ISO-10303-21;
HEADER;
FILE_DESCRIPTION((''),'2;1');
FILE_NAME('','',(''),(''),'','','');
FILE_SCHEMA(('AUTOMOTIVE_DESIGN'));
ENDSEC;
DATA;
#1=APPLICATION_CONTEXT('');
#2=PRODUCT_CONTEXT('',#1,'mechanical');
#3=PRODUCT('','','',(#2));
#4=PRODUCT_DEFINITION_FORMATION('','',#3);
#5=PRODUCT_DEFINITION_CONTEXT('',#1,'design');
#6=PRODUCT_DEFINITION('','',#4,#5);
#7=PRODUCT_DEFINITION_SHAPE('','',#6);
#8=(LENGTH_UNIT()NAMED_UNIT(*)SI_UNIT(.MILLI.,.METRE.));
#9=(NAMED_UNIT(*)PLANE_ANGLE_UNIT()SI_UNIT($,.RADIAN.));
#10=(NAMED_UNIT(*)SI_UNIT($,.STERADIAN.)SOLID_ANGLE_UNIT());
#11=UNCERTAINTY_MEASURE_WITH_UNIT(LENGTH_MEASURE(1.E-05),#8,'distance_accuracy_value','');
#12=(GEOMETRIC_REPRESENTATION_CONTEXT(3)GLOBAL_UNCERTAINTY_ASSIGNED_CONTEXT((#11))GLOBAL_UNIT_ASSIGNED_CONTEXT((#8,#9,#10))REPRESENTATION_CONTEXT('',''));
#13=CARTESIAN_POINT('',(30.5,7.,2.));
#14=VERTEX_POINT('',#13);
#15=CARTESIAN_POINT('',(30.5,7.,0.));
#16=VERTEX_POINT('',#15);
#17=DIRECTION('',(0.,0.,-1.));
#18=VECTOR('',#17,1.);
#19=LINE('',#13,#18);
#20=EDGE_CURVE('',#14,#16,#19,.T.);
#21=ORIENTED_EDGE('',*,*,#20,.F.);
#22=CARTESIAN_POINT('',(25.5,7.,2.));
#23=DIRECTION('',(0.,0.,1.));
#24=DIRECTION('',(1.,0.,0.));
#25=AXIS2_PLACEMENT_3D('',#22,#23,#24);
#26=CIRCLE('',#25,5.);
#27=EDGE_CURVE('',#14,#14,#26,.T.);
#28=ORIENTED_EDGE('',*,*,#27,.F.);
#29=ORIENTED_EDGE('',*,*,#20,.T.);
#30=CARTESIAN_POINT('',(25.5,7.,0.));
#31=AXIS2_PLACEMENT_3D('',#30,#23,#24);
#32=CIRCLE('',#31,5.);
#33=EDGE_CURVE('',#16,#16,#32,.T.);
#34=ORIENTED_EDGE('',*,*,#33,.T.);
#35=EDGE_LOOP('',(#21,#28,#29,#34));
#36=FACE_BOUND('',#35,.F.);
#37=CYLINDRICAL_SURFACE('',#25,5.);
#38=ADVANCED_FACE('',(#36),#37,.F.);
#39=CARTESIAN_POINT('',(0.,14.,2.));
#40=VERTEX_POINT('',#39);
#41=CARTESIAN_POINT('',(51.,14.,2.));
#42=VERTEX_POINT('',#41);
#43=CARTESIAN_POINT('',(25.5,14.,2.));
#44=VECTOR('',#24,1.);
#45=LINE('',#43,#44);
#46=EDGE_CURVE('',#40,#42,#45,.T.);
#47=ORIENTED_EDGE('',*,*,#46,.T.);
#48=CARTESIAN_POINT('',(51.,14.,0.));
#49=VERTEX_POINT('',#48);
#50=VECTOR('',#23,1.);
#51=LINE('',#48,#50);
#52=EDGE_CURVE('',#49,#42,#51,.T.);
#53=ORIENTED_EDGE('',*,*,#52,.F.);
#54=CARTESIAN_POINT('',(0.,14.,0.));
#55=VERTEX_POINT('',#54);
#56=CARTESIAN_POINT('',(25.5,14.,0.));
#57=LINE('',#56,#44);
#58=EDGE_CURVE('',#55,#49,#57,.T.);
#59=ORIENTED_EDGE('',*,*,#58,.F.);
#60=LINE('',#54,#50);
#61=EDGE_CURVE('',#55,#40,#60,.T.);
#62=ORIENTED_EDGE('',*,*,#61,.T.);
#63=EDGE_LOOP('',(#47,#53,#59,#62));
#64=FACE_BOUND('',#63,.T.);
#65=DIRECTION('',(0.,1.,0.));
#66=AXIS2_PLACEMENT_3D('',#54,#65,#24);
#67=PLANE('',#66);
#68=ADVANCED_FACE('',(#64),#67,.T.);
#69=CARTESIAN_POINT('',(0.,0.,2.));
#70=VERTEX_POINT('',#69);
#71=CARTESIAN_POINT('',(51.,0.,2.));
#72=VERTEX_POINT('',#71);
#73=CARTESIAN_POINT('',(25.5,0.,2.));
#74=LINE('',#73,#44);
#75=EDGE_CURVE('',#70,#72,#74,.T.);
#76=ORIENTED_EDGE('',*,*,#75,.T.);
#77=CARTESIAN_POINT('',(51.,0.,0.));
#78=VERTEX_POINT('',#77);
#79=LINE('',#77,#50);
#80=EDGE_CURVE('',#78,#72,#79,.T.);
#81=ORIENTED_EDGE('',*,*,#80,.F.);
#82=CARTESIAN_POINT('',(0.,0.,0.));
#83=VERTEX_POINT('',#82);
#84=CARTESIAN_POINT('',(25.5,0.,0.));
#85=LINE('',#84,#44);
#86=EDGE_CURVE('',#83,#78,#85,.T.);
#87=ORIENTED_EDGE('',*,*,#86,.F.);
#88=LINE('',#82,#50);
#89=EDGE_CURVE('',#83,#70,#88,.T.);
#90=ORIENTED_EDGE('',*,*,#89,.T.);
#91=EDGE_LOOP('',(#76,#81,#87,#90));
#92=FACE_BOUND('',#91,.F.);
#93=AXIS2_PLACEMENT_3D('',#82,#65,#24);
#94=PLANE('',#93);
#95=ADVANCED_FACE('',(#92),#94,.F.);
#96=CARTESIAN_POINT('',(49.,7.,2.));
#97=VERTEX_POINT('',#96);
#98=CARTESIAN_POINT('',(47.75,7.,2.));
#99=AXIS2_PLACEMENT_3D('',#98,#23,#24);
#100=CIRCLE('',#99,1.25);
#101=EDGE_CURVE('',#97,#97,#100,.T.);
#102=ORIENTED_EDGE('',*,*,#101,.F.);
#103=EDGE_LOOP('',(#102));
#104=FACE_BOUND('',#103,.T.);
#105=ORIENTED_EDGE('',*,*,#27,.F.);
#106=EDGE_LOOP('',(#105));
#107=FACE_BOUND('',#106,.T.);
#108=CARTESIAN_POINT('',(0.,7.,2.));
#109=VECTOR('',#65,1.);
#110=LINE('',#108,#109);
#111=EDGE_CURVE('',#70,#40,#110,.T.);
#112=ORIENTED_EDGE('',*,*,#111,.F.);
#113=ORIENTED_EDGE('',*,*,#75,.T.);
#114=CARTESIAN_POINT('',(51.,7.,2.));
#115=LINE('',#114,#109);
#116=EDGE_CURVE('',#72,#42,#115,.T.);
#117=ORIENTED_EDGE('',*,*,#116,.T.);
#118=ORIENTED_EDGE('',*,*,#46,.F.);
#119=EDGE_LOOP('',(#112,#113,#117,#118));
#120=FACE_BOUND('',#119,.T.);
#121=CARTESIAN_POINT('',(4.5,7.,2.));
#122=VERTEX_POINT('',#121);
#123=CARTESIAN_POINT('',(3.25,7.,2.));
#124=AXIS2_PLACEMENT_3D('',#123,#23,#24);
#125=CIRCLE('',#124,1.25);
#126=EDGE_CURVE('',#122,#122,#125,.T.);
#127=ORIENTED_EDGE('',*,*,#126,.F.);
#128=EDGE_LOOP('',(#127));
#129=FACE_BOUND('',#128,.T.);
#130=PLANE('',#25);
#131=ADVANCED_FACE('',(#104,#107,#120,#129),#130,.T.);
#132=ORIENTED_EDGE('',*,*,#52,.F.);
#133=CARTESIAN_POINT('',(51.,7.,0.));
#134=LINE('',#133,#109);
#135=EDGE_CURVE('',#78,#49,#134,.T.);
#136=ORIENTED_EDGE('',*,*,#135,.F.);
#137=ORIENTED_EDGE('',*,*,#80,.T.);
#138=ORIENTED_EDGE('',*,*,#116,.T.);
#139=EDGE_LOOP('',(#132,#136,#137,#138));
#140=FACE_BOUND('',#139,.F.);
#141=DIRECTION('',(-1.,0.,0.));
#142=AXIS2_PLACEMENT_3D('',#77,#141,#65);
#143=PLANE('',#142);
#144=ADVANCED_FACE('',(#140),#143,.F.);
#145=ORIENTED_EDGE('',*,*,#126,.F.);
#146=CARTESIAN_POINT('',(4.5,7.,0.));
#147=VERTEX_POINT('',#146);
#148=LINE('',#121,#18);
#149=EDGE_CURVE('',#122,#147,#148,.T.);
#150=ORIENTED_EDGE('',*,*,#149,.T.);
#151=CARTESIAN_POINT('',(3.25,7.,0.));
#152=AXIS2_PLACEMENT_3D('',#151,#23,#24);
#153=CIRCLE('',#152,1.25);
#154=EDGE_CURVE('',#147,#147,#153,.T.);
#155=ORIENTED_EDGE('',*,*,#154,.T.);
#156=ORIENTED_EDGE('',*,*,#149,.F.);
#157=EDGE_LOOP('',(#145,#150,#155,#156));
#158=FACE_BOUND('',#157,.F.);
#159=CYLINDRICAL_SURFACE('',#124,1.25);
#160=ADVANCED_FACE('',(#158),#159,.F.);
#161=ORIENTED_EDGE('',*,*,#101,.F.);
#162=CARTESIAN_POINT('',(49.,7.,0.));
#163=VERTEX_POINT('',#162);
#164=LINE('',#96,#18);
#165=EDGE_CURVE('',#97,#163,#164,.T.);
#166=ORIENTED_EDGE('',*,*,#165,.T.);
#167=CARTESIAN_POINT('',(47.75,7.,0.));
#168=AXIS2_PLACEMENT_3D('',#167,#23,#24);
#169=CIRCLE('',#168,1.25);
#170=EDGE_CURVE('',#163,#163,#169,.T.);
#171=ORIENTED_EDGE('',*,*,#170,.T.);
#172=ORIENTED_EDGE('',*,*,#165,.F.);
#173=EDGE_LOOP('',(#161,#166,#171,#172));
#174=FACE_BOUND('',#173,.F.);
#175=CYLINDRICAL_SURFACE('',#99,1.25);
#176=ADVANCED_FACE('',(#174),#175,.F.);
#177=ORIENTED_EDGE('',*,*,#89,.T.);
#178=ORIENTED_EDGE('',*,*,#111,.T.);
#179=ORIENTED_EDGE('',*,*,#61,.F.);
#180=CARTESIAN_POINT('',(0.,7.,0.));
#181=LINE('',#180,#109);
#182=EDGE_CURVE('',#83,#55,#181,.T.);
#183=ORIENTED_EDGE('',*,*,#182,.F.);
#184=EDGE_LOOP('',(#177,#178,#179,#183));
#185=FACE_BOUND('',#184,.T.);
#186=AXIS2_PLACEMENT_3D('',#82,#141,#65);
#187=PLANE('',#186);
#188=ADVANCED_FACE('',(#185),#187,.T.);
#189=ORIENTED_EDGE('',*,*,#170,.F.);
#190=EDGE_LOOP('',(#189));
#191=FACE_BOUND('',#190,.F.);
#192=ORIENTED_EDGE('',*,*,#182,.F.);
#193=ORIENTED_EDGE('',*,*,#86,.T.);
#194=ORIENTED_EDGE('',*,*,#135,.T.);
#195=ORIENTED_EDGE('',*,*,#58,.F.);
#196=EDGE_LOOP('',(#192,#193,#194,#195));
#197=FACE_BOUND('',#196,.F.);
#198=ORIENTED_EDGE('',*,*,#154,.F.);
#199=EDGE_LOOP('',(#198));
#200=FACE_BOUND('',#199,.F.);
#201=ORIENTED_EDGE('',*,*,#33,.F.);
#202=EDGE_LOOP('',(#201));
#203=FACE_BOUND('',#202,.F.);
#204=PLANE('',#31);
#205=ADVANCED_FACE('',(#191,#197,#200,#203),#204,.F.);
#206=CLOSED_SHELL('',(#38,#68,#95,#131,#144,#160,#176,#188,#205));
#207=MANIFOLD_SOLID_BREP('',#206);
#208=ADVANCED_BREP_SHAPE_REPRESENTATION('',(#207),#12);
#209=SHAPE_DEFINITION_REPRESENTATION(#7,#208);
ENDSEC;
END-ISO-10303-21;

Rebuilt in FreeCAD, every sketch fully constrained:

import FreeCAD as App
import Part
import Sketcher

V = App.Vector


def add_polygon(sketch, points):
    """Adds a closed chain of lines whose ends are joined by coincident constraints."""
    first, n = sketch.GeometryCount, len(points)
    for a, b in zip(points, points[1:] + points[:1]):
        sketch.addGeometry(Part.LineSegment(App.Vector(*a, 0), App.Vector(*b, 0)), False)
    for i in range(n):
        sketch.addConstraint(Sketcher.Constraint("Coincident", first + i, 2, first + (i + 1) % n, 1))

doc = App.newDocument("Part")
body = doc.addObject("PartDesign::Body", "Body")

sketch1 = doc.addObject("Sketcher::SketchObject", "Sketch")
body.addObject(sketch1)
sketch1.AttachmentSupport = (doc.XY_Plane, [""])
sketch1.MapMode = "FlatFace"
add_polygon(sketch1, [(0, 14), (0, 0), (51, 0), (51, 14)])
sketch1.addConstraint([
    Sketcher.Constraint("Vertical", 0),
    Sketcher.Constraint("Horizontal", 1),
    Sketcher.Constraint("Vertical", 2),
    Sketcher.Constraint("Horizontal", 3),
    Sketcher.Constraint("Coincident", 0, 2, -1, 1),
    Sketcher.Constraint("DistanceX", 1, 1, 1, 2, 51.0),
    Sketcher.Constraint("DistanceY", 0, 2, 0, 1, 14.0),
])
pad1 = doc.addObject("PartDesign::Pad", "Pad")
body.addObject(pad1)
pad1.Profile = sketch1
pad1.Length = 2

sketch2 = doc.addObject("Sketcher::SketchObject", "Sketch001")
body.addObject(sketch2)
sketch2.AttachmentSupport = (doc.XY_Plane, [""])
sketch2.MapMode = "FlatFace"
sketch2.AttachmentOffset = App.Placement(V(0, 0, 2), App.Rotation())
sketch2.addGeometry([
    Part.Circle(V(3.25, 7, 0), V(0, 0, 1), 1.25),
    Part.Circle(V(25.5, 7, 0), V(0, 0, 1), 5),
    Part.Circle(V(47.75, 7, 0), V(0, 0, 1), 1.25),
], False)
sketch2.addConstraint([
    Sketcher.Constraint("Equal", 0, 2),
    Sketcher.Constraint("Horizontal", 0, 3, 1, 3),
    Sketcher.Constraint("Horizontal", 1, 3, 2, 3),
    Sketcher.Constraint("Diameter", 1, 10.0),
    Sketcher.Constraint("Diameter", 0, 2.5),
    Sketcher.Constraint("DistanceY", -1, 1, 0, 3, 7.0),
    Sketcher.Constraint("DistanceX", -1, 1, 1, 3, 25.5),
    Sketcher.Constraint("DistanceX", 0, 3, 2, 3, 44.5),
    Sketcher.Constraint("DistanceX", -1, 1, 0, 3, 3.25),
])
pocket1 = doc.addObject("PartDesign::Pocket", "Pocket")
body.addObject(pocket1)
pocket1.Profile = sketch2
pocket1.Length = 5

doc.recompute()
